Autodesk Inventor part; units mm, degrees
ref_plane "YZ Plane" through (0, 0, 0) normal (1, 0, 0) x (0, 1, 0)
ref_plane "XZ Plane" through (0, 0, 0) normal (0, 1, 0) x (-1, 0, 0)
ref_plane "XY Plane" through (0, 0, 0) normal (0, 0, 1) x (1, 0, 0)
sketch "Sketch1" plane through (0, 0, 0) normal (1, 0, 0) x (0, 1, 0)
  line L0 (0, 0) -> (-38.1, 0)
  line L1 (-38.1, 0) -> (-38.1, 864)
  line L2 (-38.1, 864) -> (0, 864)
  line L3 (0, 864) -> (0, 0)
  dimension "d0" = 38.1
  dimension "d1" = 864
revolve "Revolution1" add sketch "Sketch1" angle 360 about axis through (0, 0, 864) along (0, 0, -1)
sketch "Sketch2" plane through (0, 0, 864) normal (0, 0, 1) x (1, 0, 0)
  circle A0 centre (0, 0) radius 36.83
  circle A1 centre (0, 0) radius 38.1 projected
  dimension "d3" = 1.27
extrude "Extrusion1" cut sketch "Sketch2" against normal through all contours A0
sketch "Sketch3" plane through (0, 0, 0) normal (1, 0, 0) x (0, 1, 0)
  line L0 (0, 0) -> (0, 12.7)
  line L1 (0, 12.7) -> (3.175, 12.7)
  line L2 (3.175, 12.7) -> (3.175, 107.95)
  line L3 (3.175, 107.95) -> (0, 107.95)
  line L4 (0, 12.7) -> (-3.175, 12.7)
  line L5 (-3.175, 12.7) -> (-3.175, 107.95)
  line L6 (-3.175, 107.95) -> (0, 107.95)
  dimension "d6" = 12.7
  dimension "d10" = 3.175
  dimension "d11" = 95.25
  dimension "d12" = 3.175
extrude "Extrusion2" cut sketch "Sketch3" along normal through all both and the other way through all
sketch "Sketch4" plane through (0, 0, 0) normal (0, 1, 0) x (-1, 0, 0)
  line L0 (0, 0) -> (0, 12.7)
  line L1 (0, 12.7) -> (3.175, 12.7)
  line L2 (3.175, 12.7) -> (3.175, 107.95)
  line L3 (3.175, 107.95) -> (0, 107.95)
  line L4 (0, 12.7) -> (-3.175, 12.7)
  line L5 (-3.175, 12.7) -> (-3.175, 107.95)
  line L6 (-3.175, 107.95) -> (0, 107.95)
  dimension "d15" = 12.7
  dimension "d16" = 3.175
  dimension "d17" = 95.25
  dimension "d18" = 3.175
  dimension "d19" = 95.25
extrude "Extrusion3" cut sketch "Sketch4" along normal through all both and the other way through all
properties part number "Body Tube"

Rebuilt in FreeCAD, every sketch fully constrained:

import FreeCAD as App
import Part
import Sketcher
from FreeCAD import Vector
Q = App.Units.Quantity

doc = App.newDocument("Part")
params = doc.addObject("Spreadsheet::Sheet", "Params")
for row, (alias, value) in enumerate([
    ("sketch1_width", "1.5 in"),
    ("revolution_angle", "360 deg"),
    ("sketch2_diameter", "2.9 in"),
    ("sketch3_height", "3.75 in"),
    ("sketch4_height", "3.75 in"),
], start=1):
    params.set(f"A{row}", alias)
    params.set(f"B{row}", "=" + value)
    params.setAlias(f"B{row}", alias)

body = doc.addObject("PartDesign::Body", "Body")

sketch1 = doc.addObject("Sketcher::SketchObject", "Sketch")
body.addObject(sketch1)
sketch1.AttachmentSupport = (doc.YZ_Plane, [""])
sketch1.MapMode = "FlatFace"
sketch1.addGeometry([
    Part.LineSegment(Vector(-38.1, 0, 0), Vector(0, 0, 0)),
    Part.LineSegment(Vector(0, 0, 0), Vector(0, 864, 0)),
    Part.LineSegment(Vector(0, 864, 0), Vector(-38.1, 864, 0)),
    Part.LineSegment(Vector(-38.1, 864, 0), Vector(-38.1, 0, 0)),
], False)
sketch1.addConstraint([
    Sketcher.Constraint("Coincident", 0, 2, 1, 1),
    Sketcher.Constraint("Coincident", 1, 2, 2, 1),
    Sketcher.Constraint("Coincident", 2, 2, 3, 1),
    Sketcher.Constraint("Coincident", 3, 2, 0, 1),
    Sketcher.Constraint("Horizontal", 0),
    Sketcher.Constraint("Vertical", 1),
    Sketcher.Constraint("Horizontal", 2),
    Sketcher.Constraint("Vertical", 3),
    Sketcher.Constraint("Coincident", 0, 2, -1, 1),
    Sketcher.Constraint("DistanceX", 0, 1, 0, 2, Q("1.5 in")),
    Sketcher.Constraint("DistanceY", 1, 1, 1, 2, Q("864 mm")),
])
sketch1.setExpression("Constraints[9]", "Params.sketch1_width")
revolution = doc.addObject("PartDesign::Revolution", "Revolution")
body.addObject(revolution)
revolution.Profile = sketch1
revolution.ReferenceAxis = (sketch1, ["V_Axis"])
revolution.setExpression("Angle", "Params.revolution_angle")

sketch2 = doc.addObject("Sketcher::SketchObject", "Sketch001")
body.addObject(sketch2)
sketch2.AttachmentSupport = (doc.XY_Plane, [""])
sketch2.MapMode = "FlatFace"
sketch2.AttachmentOffset = App.Placement(Vector(0, 0, 864), App.Rotation())
sketch2.addGeometry(Part.Circle(Vector(0, 0, 0), Vector(0, 0, 1), 36.83), False)
sketch2.addConstraint([
    Sketcher.Constraint("Coincident", 0, 3, -1, 1),
    Sketcher.Constraint("Diameter", 0, Q("2.9 in")),
])
sketch2.setExpression("Constraints[1]", "Params.sketch2_diameter")
pocket1 = doc.addObject("PartDesign::Pocket", "Pocket")
body.addObject(pocket1)
pocket1.Profile = sketch2
pocket1.Type = "ThroughAll"

sketch3 = doc.addObject("Sketcher::SketchObject", "Sketch002")
body.addObject(sketch3)
sketch3.AttachmentSupport = (doc.YZ_Plane, [""])
sketch3.MapMode = "FlatFace"
sketch3.addGeometry([
    Part.LineSegment(Vector(-3.175, 12.7, 0), Vector(3.175, 12.7, 0)),
    Part.LineSegment(Vector(3.175, 12.7, 0), Vector(3.175, 107.95, 0)),
    Part.LineSegment(Vector(3.175, 107.95, 0), Vector(-3.175, 107.95, 0)),
    Part.LineSegment(Vector(-3.175, 107.95, 0), Vector(-3.175, 12.7, 0)),
], False)
sketch3.addConstraint([
    Sketcher.Constraint("Coincident", 0, 2, 1, 1),
    Sketcher.Constraint("Coincident", 1, 2, 2, 1),
    Sketcher.Constraint("Coincident", 2, 2, 3, 1),
    Sketcher.Constraint("Coincident", 3, 2, 0, 1),
    Sketcher.Constraint("Horizontal", 0),
    Sketcher.Constraint("Vertical", 1),
    Sketcher.Constraint("Horizontal", 2),
    Sketcher.Constraint("Vertical", 3),
    Sketcher.Constraint("DistanceY", 1, 1, 1, 2, Q("3.75 in")),
    Sketcher.Constraint("DistanceY", -1, 1, 0, 2, Q("0.5 in")),
    Sketcher.Constraint("DistanceX", -1, 1, 0, 2, Q("0.125 in")),
    Sketcher.Constraint("DistanceX", 2, 2, -1, 1, Q("0.125 in")),
])
sketch3.setExpression("Constraints[8]", "Params.sketch3_height")
pocket2 = doc.addObject("PartDesign::Pocket", "Pocket001")
body.addObject(pocket2)
pocket2.Profile = sketch3
pocket2.Type = "ThroughAll"
pocket2.Midplane = True

sketch4 = doc.addObject("Sketcher::SketchObject", "Sketch003")
body.addObject(sketch4)
sketch4.AttachmentSupport = (doc.XZ_Plane, [""])
sketch4.MapMode = "FlatFace"
sketch4.addGeometry([
    Part.LineSegment(Vector(3.175, 12.7, 0), Vector(-3.175, 12.7, 0)),
    Part.LineSegment(Vector(-3.175, 12.7, 0), Vector(-3.175, 107.95, 0)),
    Part.LineSegment(Vector(-3.175, 107.95, 0), Vector(3.175, 107.95, 0)),
    Part.LineSegment(Vector(3.175, 107.95, 0), Vector(3.175, 12.7, 0)),
], False)
sketch4.addConstraint([
    Sketcher.Constraint("Coincident", 0, 2, 1, 1),
    Sketcher.Constraint("Coincident", 1, 2, 2, 1),
    Sketcher.Constraint("Coincident", 2, 2, 3, 1),
    Sketcher.Constraint("Coincident", 3, 2, 0, 1),
    Sketcher.Constraint("Horizontal", 0),
    Sketcher.Constraint("Vertical", 1),
    Sketcher.Constraint("Horizontal", 2),
    Sketcher.Constraint("Vertical", 3),
    Sketcher.Constraint("DistanceY", 1, 1, 1, 2, Q("3.75 in")),
    Sketcher.Constraint("DistanceY", -1, 1, 0, 2, Q("0.5 in")),
    Sketcher.Constraint("DistanceX", 0, 2, -1, 1, Q("0.125 in")),
    Sketcher.Constraint("DistanceX", -1, 1, 2, 2, Q("0.125 in")),
])
sketch4.setExpression("Constraints[8]", "Params.sketch4_height")
pocket3 = doc.addObject("PartDesign::Pocket", "Pocket002")
body.addObject(pocket3)
pocket3.Profile = sketch4
pocket3.Type = "ThroughAll"
pocket3.Midplane = True

doc.recompute()
